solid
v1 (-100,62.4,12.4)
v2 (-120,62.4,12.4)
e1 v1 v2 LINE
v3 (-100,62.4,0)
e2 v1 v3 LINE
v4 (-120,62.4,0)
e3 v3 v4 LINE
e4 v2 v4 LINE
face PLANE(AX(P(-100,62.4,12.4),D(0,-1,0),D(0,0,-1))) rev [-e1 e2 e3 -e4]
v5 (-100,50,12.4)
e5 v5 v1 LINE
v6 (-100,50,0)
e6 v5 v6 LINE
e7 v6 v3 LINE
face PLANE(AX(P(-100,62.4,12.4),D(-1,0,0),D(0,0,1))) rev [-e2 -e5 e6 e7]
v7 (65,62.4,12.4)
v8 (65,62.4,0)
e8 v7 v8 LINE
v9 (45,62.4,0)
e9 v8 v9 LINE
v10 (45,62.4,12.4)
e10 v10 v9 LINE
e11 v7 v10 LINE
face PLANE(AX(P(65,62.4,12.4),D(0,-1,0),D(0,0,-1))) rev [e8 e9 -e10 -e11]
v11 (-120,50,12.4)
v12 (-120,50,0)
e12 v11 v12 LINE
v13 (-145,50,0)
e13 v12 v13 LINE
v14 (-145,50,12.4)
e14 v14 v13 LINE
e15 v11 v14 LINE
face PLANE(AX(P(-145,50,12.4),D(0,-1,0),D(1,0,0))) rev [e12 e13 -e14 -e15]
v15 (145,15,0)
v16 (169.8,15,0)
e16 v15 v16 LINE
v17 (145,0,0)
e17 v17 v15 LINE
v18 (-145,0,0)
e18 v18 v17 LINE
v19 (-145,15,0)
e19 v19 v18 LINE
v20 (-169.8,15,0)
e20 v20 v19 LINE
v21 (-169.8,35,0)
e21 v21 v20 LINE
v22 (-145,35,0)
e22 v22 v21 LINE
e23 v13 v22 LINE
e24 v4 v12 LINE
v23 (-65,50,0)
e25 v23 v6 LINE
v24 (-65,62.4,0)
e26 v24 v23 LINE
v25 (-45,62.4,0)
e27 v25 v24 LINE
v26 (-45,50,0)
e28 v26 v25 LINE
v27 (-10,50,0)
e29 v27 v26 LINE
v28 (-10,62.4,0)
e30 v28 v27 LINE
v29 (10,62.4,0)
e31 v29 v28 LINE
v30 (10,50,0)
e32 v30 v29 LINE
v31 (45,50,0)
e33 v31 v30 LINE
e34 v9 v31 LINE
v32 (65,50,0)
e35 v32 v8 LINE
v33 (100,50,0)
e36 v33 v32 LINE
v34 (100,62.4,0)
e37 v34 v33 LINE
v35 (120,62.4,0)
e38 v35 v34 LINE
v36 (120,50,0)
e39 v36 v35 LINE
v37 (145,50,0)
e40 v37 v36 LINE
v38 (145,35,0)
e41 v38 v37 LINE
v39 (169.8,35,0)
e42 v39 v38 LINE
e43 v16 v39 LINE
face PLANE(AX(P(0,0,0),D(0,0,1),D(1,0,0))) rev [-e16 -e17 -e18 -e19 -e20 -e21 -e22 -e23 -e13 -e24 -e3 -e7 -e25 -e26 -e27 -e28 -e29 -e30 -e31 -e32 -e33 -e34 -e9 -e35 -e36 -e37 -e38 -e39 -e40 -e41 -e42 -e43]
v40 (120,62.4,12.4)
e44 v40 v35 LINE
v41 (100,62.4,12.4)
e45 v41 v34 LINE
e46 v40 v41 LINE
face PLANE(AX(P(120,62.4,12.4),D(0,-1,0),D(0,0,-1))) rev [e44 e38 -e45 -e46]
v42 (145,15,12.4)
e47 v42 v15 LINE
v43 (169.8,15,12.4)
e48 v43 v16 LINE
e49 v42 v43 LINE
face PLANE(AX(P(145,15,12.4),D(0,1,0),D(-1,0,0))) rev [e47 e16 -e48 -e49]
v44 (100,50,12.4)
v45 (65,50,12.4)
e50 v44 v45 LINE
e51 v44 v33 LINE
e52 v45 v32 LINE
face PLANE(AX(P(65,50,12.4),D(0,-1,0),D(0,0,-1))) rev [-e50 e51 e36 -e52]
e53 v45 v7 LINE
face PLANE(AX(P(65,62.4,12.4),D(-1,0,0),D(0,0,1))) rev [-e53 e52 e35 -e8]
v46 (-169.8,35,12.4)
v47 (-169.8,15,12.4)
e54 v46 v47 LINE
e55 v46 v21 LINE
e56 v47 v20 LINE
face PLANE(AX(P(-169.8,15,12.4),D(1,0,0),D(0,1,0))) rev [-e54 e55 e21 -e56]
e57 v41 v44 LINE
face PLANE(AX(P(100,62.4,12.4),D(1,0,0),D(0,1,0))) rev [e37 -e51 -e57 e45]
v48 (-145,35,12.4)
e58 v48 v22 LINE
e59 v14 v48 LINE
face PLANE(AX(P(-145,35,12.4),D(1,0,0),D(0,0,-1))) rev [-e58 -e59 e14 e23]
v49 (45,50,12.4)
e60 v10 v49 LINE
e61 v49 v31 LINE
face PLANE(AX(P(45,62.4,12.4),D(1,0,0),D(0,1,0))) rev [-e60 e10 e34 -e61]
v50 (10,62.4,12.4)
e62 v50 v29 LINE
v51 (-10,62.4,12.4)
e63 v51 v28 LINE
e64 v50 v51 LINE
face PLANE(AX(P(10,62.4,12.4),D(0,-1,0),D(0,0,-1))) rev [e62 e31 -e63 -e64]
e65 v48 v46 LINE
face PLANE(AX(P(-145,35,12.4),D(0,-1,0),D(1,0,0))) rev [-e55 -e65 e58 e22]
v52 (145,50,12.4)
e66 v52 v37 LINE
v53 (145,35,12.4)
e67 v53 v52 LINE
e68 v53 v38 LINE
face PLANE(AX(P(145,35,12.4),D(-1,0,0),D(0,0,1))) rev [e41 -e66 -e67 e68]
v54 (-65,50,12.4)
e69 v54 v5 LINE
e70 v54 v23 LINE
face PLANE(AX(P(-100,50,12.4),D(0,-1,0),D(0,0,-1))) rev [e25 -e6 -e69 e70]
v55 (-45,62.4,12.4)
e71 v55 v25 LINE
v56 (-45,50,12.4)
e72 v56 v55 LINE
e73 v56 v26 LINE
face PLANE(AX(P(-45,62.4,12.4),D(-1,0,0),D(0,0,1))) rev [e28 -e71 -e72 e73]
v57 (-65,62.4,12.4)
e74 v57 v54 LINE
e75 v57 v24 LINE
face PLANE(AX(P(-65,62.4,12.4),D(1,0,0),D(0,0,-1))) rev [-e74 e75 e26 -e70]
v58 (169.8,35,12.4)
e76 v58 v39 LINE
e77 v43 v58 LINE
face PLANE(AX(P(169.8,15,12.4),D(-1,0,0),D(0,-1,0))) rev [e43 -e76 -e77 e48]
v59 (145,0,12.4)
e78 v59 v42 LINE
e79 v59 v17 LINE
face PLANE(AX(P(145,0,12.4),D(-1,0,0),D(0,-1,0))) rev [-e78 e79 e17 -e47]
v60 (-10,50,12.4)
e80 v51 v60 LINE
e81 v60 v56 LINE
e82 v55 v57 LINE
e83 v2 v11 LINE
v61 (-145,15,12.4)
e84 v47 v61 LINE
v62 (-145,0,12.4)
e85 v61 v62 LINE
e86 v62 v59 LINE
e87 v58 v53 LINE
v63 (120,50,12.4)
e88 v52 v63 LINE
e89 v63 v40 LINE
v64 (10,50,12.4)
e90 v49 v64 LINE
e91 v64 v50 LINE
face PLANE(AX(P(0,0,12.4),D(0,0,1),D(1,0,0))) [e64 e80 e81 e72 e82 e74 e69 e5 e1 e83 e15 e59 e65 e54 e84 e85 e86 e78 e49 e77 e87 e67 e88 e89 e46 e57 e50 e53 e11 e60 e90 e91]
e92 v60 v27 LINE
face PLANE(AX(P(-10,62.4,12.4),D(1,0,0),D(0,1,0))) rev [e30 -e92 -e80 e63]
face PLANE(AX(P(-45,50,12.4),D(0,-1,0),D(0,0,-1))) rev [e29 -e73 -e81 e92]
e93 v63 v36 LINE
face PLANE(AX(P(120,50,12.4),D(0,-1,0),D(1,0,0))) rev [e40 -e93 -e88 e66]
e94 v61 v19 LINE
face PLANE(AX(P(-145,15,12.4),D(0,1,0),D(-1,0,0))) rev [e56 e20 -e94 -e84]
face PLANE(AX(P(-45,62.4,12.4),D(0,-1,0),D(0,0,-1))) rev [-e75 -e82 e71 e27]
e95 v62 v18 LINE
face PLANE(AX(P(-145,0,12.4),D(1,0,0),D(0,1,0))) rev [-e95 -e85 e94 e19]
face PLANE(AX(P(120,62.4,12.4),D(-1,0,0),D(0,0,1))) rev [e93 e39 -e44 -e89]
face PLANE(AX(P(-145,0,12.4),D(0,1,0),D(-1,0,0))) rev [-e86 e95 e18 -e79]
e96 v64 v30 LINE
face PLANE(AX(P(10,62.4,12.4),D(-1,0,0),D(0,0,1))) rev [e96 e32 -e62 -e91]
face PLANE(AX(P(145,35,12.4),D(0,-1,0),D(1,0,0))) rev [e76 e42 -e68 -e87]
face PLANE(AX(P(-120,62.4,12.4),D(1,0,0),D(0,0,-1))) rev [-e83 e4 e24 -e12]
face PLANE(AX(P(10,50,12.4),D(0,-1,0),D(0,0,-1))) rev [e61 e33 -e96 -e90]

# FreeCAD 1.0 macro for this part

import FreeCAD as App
import Part
import Sketcher

doc = App.newDocument("Part")
body = doc.addObject("PartDesign::Body", "Body")

sketch1 = doc.addObject("Sketcher::SketchObject", "Sketch")
body.addObject(sketch1)
sketch1.AttachmentSupport = (doc.XY_Plane, [""])
sketch1.MapMode = "FlatFace"
sketch1.addGeometry([
    Part.LineSegment(App.Vector(145, 35, 0), App.Vector(145, 50, 0)),
    Part.LineSegment(App.Vector(145, 50, 0), App.Vector(120, 50, 0)),
    Part.LineSegment(App.Vector(120, 50, 0), App.Vector(120, 62, 0)),
    Part.LineSegment(App.Vector(120, 62, 0), App.Vector(100, 62, 0)),
    Part.LineSegment(App.Vector(100, 62, 0), App.Vector(100, 50, 0)),
    Part.LineSegment(App.Vector(100, 50, 0), App.Vector(65, 50, 0)),
    Part.LineSegment(App.Vector(65, 50, 0), App.Vector(65, 62, 0)),
    Part.LineSegment(App.Vector(65, 62, 0), App.Vector(45, 62, 0)),
    Part.LineSegment(App.Vector(45, 62, 0), App.Vector(45, 50, 0)),
    Part.LineSegment(App.Vector(45, 50, 0), App.Vector(10, 50, 0)),
    Part.LineSegment(App.Vector(10, 50, 0), App.Vector(10, 62, 0)),
    Part.LineSegment(App.Vector(10, 62, 0), App.Vector(-10, 62, 0)),
    Part.LineSegment(App.Vector(-10, 62, 0), App.Vector(-10, 50, 0)),
    Part.LineSegment(App.Vector(-10, 50, 0), App.Vector(-45, 50, 0)),
    Part.LineSegment(App.Vector(-45, 50, 0), App.Vector(-45, 62, 0)),
    Part.LineSegment(App.Vector(-45, 62, 0), App.Vector(-65, 62, 0)),
    Part.LineSegment(App.Vector(-65, 62, 0), App.Vector(-65, 50, 0)),
    Part.LineSegment(App.Vector(-65, 50, 0), App.Vector(-100, 50, 0)),
    Part.LineSegment(App.Vector(-100, 50, 0), App.Vector(-100, 62, 0)),
    Part.LineSegment(App.Vector(-100, 62, 0), App.Vector(-120, 62, 0)),
    Part.LineSegment(App.Vector(-120, 62, 0), App.Vector(-120, 50, 0)),
    Part.LineSegment(App.Vector(-120, 50, 0), App.Vector(-145, 50, 0)),
    Part.LineSegment(App.Vector(-145, 50, 0), App.Vector(-145, 35, 0)),
    Part.LineSegment(App.Vector(-145, 35, 0), App.Vector(-170, 35, 0)),
    Part.LineSegment(App.Vector(-170, 35, 0), App.Vector(-170, 15, 0)),
    Part.LineSegment(App.Vector(-170, 15, 0), App.Vector(-145, 15, 0)),
    Part.LineSegment(App.Vector(-145, 15, 0), App.Vector(-145, 0, 0)),
    Part.LineSegment(App.Vector(-145, 0, 0), App.Vector(145, 0, 0)),
    Part.LineSegment(App.Vector(145, 0, 0), App.Vector(145, 15, 0)),
    Part.LineSegment(App.Vector(145, 15, 0), App.Vector(170, 15, 0)),
    Part.LineSegment(App.Vector(170, 15, 0), App.Vector(170, 35, 0)),
    Part.LineSegment(App.Vector(170, 35, 0), App.Vector(145, 35, 0)),
], False)
sketch1.addConstraint([
    Sketcher.Constraint("Coincident", 0, 2, 1, 1),
    Sketcher.Constraint("Coincident", 1, 2, 2, 1),
    Sketcher.Constraint("Coincident", 2, 2, 3, 1),
    Sketcher.Constraint("Coincident", 3, 2, 4, 1),
    Sketcher.Constraint("Coincident", 4, 2, 5, 1),
    Sketcher.Constraint("Coincident", 5, 2, 6, 1),
    Sketcher.Constraint("Coincident", 6, 2, 7, 1),
    Sketcher.Constraint("Coincident", 7, 2, 8, 1),
    Sketcher.Constraint("Coincident", 8, 2, 9, 1),
    Sketcher.Constraint("Coincident", 9, 2, 10, 1),
    Sketcher.Constraint("Coincident", 10, 2, 11, 1),
    Sketcher.Constraint("Coincident", 11, 2, 12, 1),
    Sketcher.Constraint("Coincident", 12, 2, 13, 1),
    Sketcher.Constraint("Coincident", 13, 2, 14, 1),
    Sketcher.Constraint("Coincident", 14, 2, 15, 1),
    Sketcher.Constraint("Coincident", 15, 2, 16, 1),
    Sketcher.Constraint("Coincident", 16, 2, 17, 1),
    Sketcher.Constraint("Coincident", 17, 2, 18, 1),
    Sketcher.Constraint("Coincident", 18, 2, 19, 1),
    Sketcher.Constraint("Coincident", 19, 2, 20, 1),
    Sketcher.Constraint("Coincident", 20, 2, 21, 1),
    Sketcher.Constraint("Coincident", 21, 2, 22, 1),
    Sketcher.Constraint("Coincident", 22, 2, 23, 1),
    Sketcher.Constraint("Coincident", 23, 2, 24, 1),
    Sketcher.Constraint("Coincident", 24, 2, 25, 1),
    Sketcher.Constraint("Coincident", 25, 2, 26, 1),
    Sketcher.Constraint("Coincident", 26, 2, 27, 1),
    Sketcher.Constraint("Coincident", 27, 2, 28, 1),
    Sketcher.Constraint("Coincident", 28, 2, 29, 1),
    Sketcher.Constraint("Coincident", 29, 2, 30, 1),
    Sketcher.Constraint("Coincident", 30, 2, 31, 1),
    Sketcher.Constraint("Coincident", 31, 2, 0, 1),
    Sketcher.Constraint("Vertical", 0),
    Sketcher.Constraint("Horizontal", 1),
    Sketcher.Constraint("Vertical", 2),
    Sketcher.Constraint("Horizontal", 3),
    Sketcher.Constraint("Vertical", 4),
    Sketcher.Constraint("Horizontal", 5),
    Sketcher.Constraint("Vertical", 6),
    Sketcher.Constraint("Horizontal", 7),
    Sketcher.Constraint("Vertical", 8),
    Sketcher.Constraint("Horizontal", 9),
    Sketcher.Constraint("Vertical", 10),
    Sketcher.Constraint("Horizontal", 11),
    Sketcher.Constraint("Vertical", 12),
    Sketcher.Constraint("Horizontal", 13),
    Sketcher.Constraint("Vertical", 14),
    Sketcher.Constraint("Horizontal", 15),
    Sketcher.Constraint("Vertical", 16),
    Sketcher.Constraint("Horizontal", 17),
    Sketcher.Constraint("Vertical", 18),
    Sketcher.Constraint("Horizontal", 19),
    Sketcher.Constraint("Vertical", 20),
    Sketcher.Constraint("Horizontal", 21),
    Sketcher.Constraint("Vertical", 22),
    Sketcher.Constraint("Horizontal", 23),
    Sketcher.Constraint("Vertical", 24),
    Sketcher.Constraint("Horizontal", 25),
    Sketcher.Constraint("Vertical", 26),
    Sketcher.Constraint("Horizontal", 27),
    Sketcher.Constraint("Vertical", 28),
    Sketcher.Constraint("Horizontal", 29),
    Sketcher.Constraint("Vertical", 30),
    Sketcher.Constraint("Horizontal", 31),
    Sketcher.Constraint("Symmetric", 26, 2, 27, 2, -1, 1),
    Sketcher.Constraint("Symmetric", 9, 2, 12, 2, -2),
    Sketcher.Constraint("Symmetric", 7, 2, 14, 2, -2),
    Sketcher.Constraint("Symmetric", 5, 2, 16, 2, -2),
    Sketcher.Constraint("Symmetric", 3, 2, 18, 2, -2),
    Sketcher.Constraint("Symmetric", 1, 2, 20, 2, -2),
    Sketcher.Constraint("Symmetric", 24, 2, 29, 2, -2),
    Sketcher.Constraint("Symmetric", 22, 2, 31, 2, -2),
    Sketcher.Constraint("Horizontal", 1, 2, 4, 2),
    Sketcher.Constraint("Horizontal", 3, 2, 6, 2),
    Sketcher.Constraint("Horizontal", 5, 2, 8, 2),
    Sketcher.Constraint("Horizontal", 7, 2, 10, 2),
    Sketcher.Constraint("Vertical", 22, 2, 25, 2),
    Sketcher.Constraint("Equal", 3, 7),
    Sketcher.Constraint("Equal", 5, 9),
    Sketcher.Constraint("Equal", 7, 11),
    Sketcher.Constraint("Equal", 19, 24),
    Sketcher.Constraint("Equal", 22, 26),
    Sketcher.Constraint("DistanceX", 1, 2, 1, 1, 25.0),
    Sketcher.Constraint("DistanceX", 3, 2, 3, 1, 20.0),
    Sketcher.Constraint("DistanceX", 5, 2, 5, 1, 35.0),
    Sketcher.Constraint("DistanceY", 0, 1, 0, 2, 15.0),
    Sketcher.Constraint("DistanceX", 23, 2, 23, 1, 24.8),
    Sketcher.Constraint("DistanceY", 2, 1, 2, 2, 12.4),
])
pad1 = doc.addObject("PartDesign::Pad", "Pad")
body.addObject(pad1)
pad1.Profile = sketch1
pad1.Length = 12.4

doc.recompute()
